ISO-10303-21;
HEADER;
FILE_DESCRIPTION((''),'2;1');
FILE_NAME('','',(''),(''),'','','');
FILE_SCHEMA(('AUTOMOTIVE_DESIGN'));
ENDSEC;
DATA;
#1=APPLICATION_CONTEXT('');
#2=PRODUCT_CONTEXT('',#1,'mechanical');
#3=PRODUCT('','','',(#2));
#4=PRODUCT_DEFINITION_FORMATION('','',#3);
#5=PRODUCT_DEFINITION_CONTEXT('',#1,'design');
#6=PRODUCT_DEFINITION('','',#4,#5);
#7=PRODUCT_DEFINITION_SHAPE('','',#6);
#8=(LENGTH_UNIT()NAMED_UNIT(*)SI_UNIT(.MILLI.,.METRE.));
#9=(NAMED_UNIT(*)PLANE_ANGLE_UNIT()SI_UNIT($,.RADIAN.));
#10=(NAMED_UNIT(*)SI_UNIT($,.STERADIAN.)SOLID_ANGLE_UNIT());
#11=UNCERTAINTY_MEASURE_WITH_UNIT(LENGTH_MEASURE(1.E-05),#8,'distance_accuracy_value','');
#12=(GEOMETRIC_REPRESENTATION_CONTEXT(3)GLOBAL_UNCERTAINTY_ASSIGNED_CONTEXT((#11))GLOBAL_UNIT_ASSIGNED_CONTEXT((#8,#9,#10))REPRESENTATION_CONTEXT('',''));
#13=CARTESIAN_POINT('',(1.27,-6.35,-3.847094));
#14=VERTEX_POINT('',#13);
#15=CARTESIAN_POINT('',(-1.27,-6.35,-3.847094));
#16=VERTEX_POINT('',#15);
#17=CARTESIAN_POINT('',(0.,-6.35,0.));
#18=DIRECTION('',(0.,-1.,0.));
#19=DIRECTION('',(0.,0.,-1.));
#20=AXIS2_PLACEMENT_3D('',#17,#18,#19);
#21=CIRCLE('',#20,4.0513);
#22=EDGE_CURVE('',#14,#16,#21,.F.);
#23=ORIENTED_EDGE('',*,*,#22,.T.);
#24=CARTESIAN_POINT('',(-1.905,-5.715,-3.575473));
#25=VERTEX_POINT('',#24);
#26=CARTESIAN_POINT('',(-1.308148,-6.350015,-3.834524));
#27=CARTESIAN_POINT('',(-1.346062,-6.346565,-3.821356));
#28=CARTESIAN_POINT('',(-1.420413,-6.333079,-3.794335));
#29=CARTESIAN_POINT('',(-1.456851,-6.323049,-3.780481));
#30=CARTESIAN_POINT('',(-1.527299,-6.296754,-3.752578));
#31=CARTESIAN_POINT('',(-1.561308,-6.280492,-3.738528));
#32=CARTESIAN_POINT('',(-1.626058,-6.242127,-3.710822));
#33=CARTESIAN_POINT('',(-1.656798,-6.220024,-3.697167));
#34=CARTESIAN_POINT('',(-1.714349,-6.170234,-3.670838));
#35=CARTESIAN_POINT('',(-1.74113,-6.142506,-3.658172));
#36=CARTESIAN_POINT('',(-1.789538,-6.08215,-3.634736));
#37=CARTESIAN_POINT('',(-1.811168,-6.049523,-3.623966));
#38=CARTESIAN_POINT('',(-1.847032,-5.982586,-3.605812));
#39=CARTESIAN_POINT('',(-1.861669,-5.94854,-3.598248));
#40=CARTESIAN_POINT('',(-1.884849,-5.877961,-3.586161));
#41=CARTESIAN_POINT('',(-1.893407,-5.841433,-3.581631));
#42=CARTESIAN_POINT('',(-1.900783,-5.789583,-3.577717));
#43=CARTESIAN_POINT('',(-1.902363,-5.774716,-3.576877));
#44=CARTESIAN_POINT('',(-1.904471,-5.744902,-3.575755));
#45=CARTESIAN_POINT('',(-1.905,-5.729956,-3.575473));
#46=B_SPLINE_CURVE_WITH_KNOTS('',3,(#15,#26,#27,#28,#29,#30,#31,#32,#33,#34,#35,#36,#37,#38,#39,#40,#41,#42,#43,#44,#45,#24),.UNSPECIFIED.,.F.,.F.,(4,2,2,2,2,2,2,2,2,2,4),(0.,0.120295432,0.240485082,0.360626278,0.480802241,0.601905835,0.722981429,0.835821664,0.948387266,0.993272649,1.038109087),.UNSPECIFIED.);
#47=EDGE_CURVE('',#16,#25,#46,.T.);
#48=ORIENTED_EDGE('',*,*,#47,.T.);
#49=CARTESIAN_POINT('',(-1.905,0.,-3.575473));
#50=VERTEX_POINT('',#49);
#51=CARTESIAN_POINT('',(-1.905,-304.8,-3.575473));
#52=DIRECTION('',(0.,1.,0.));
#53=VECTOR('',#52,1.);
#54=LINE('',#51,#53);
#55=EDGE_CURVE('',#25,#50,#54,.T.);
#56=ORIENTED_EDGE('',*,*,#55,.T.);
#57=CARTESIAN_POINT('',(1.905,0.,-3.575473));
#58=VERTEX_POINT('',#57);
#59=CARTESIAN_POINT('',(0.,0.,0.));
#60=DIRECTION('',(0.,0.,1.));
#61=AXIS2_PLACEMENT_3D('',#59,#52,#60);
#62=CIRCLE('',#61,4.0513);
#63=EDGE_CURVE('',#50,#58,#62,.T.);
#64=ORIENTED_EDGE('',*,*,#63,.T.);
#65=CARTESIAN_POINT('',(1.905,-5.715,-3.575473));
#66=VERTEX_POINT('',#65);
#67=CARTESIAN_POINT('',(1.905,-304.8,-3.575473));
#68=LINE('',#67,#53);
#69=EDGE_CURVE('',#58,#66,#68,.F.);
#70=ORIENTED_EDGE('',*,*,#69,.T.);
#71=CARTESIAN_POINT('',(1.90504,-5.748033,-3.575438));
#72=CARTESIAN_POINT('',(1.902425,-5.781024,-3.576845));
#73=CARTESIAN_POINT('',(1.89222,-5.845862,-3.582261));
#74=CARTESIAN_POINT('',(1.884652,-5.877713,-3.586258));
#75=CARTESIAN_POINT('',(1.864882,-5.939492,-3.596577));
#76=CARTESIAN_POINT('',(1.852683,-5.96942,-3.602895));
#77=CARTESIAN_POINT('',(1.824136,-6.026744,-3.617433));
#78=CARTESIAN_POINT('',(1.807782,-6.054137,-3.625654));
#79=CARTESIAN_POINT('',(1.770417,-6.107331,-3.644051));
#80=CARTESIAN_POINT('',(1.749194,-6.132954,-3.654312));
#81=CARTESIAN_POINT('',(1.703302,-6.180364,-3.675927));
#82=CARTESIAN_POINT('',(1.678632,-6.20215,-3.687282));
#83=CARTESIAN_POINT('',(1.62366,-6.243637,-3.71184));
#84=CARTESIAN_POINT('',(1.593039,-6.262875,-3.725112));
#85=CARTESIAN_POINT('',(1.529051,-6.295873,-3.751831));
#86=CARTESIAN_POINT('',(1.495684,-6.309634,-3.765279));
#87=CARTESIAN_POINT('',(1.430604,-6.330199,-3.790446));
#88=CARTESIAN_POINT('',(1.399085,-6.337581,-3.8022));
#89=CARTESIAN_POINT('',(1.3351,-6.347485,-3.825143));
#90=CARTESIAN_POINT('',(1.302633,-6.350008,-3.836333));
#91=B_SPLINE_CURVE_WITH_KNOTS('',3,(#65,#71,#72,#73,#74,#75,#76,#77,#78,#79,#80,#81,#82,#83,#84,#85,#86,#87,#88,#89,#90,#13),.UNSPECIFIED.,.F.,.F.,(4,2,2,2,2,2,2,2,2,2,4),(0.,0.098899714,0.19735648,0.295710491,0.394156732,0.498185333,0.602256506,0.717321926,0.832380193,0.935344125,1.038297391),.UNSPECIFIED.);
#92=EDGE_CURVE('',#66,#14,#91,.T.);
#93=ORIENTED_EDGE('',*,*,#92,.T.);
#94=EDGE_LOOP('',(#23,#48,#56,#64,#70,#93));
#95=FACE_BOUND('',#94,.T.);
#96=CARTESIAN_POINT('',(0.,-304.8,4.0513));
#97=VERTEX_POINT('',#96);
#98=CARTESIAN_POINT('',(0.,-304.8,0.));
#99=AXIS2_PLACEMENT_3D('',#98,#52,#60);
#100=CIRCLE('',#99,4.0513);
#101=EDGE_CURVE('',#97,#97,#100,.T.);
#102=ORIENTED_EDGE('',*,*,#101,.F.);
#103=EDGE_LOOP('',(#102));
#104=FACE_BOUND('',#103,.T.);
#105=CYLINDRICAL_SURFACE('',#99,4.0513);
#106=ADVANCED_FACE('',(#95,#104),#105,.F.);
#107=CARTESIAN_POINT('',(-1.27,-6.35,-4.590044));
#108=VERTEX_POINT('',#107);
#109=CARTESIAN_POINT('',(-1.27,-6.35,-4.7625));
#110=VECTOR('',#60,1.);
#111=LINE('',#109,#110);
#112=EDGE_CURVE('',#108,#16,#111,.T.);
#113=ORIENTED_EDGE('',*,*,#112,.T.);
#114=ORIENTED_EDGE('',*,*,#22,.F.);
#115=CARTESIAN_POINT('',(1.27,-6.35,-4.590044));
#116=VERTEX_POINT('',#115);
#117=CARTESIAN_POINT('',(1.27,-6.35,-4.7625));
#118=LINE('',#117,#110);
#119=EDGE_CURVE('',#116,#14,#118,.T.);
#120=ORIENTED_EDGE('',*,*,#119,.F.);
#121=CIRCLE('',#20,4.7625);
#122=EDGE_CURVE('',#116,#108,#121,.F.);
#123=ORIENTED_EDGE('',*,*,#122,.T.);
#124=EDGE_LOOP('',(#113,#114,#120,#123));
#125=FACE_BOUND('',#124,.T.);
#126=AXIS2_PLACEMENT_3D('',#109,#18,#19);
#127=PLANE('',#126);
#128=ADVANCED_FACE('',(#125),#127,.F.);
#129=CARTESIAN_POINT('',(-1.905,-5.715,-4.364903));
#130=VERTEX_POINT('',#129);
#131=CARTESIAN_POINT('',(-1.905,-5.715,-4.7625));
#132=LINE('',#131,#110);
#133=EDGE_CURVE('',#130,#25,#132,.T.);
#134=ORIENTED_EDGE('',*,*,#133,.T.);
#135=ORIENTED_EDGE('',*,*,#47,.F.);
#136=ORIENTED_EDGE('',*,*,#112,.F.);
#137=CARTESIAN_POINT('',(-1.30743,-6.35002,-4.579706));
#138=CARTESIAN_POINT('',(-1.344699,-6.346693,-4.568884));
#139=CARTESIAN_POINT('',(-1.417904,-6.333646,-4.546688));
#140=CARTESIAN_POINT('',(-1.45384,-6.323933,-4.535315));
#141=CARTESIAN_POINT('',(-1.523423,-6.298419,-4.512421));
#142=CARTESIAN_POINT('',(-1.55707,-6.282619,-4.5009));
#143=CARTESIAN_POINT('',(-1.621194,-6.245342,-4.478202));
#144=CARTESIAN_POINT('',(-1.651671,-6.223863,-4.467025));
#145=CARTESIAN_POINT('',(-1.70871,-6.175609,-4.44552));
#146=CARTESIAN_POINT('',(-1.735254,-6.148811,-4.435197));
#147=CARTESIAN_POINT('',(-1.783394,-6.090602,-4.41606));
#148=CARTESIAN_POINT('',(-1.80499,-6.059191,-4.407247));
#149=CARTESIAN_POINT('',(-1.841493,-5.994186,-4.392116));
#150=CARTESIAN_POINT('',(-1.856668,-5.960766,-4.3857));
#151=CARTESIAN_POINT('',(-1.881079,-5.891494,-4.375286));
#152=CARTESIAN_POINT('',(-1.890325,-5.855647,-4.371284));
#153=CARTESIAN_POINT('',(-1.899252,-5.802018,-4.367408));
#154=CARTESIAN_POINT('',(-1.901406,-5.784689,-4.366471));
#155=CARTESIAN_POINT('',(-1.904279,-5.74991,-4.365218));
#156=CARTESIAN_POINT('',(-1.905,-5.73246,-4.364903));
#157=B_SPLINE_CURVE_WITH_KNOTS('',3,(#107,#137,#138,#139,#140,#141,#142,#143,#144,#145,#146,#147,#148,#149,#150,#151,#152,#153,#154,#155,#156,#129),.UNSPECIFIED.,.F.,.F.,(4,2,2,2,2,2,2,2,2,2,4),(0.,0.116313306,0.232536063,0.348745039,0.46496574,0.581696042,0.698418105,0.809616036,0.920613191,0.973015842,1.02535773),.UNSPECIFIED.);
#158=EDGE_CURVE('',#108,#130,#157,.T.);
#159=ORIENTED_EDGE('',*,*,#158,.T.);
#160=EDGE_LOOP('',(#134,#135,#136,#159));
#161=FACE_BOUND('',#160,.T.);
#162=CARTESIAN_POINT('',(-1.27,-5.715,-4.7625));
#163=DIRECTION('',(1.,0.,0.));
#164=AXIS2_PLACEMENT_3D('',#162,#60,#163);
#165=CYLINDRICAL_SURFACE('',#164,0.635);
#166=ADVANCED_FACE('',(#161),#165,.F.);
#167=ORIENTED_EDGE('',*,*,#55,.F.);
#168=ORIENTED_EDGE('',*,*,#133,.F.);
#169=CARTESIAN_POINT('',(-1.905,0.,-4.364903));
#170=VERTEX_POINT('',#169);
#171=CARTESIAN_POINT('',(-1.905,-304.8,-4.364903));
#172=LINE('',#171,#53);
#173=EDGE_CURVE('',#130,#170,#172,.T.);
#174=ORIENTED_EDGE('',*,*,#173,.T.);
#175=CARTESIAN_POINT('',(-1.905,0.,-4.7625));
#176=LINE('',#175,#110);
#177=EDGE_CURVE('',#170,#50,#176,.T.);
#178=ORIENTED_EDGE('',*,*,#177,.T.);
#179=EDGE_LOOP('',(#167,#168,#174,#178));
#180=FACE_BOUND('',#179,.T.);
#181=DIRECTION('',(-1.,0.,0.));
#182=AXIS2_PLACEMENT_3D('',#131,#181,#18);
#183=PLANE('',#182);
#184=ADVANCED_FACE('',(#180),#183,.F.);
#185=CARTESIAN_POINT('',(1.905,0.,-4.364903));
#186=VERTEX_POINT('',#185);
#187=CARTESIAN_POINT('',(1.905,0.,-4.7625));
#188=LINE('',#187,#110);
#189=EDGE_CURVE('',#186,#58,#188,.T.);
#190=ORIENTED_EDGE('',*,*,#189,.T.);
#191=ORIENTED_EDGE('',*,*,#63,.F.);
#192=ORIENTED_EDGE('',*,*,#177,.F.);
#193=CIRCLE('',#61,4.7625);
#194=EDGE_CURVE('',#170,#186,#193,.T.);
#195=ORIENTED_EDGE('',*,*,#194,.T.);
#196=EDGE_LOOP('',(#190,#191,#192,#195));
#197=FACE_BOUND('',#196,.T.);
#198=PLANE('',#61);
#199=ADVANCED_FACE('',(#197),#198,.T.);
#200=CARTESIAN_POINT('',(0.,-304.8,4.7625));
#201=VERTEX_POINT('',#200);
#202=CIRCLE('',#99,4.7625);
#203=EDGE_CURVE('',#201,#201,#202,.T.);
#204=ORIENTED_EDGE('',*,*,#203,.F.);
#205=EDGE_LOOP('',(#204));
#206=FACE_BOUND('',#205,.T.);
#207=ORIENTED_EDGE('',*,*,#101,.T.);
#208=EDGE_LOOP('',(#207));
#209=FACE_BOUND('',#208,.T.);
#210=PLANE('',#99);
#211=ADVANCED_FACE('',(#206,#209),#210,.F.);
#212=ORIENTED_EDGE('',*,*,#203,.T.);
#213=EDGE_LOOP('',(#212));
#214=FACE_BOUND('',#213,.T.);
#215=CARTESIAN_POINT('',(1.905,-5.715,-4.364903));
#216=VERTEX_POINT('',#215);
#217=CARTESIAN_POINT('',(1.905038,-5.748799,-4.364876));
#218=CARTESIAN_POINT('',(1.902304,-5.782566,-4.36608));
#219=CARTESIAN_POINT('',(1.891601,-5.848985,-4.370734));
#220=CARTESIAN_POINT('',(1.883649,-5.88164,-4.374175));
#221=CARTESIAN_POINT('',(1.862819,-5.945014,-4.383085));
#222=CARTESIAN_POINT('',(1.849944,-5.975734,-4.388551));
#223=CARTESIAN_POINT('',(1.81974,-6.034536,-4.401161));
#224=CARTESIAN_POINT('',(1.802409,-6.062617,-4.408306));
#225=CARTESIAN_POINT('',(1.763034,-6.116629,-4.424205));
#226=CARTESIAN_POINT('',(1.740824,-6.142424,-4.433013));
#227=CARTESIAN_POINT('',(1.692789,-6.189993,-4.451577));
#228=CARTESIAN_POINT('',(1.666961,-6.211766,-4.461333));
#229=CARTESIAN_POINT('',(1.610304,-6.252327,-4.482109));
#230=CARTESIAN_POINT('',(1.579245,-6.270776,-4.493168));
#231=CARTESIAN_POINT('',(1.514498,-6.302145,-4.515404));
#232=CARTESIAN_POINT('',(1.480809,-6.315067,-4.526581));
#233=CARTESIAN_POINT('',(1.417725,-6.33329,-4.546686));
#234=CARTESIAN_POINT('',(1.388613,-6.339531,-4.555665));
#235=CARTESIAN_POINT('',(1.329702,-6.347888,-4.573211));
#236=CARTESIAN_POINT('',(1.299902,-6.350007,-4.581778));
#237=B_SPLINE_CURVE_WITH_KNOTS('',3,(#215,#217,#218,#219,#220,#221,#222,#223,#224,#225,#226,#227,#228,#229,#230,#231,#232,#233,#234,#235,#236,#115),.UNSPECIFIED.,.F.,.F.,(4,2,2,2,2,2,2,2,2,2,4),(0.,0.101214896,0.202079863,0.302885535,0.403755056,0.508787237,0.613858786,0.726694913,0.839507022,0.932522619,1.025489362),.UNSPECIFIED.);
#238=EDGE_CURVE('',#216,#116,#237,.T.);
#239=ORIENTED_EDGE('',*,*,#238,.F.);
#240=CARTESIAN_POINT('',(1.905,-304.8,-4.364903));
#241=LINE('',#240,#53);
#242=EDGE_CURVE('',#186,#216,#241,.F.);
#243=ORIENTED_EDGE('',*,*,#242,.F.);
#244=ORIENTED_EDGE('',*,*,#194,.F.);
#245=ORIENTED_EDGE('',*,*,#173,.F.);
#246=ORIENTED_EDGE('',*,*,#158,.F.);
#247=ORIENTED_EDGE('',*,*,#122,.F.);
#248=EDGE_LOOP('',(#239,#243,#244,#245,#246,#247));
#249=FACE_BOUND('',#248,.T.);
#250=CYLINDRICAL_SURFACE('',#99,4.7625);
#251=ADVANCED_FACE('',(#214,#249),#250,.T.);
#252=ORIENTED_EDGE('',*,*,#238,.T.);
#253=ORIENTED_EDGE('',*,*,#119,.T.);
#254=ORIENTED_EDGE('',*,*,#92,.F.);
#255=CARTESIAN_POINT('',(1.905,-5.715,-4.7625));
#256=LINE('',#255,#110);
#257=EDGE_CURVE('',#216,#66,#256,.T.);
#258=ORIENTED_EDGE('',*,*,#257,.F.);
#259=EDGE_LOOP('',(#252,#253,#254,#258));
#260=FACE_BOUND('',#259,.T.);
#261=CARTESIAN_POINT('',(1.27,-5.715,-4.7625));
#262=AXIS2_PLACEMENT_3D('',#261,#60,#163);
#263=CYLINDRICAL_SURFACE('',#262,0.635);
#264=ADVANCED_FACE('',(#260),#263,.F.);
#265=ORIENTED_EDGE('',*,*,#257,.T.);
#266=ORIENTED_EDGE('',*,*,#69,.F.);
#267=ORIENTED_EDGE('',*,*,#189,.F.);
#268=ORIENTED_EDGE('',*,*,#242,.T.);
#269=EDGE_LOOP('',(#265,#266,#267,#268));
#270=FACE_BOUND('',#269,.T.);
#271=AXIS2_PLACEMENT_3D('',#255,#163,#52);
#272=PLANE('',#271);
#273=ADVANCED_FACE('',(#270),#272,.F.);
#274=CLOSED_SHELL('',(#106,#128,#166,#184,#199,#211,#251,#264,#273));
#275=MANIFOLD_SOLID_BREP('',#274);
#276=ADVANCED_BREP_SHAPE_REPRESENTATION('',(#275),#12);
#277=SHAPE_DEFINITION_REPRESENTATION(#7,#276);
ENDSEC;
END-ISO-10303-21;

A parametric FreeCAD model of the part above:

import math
import FreeCAD as App
import Part
import Sketcher
from FreeCAD import Vector
Q = App.Units.Quantity

doc = App.newDocument("Part")
params = doc.addObject("Spreadsheet::Sheet", "Params")
for row, (alias, value) in enumerate([
    ("sketch1_diameter", "0.375 in"),
    ("sketch1_diameter2", "0.319 in"),
    ("pad1_length", "12 in"),
    ("sketch2_width", "0.1 in"),
    ("sketch2_radius", "0.025 in"),
    ("sketch2_height", "0.225 in"),
], start=1):
    params.set(f"A{row}", alias)
    params.set(f"B{row}", "=" + value)
    params.setAlias(f"B{row}", alias)

body = doc.addObject("PartDesign::Body", "Body")

# Sketch on XZ plane
sketch1 = doc.addObject("Sketcher::SketchObject", "Sketch")
body.addObject(sketch1)
sketch1.AttachmentSupport = (doc.XZ_Plane, [""])
sketch1.MapMode = "FlatFace"
sketch1.addGeometry([
    Part.Circle(Vector(0, 0, 0), Vector(0, 0, 1), 4.8),
    Part.Circle(Vector(0, 0, 0), Vector(0, 0, 1), 4.1),
], False)
sketch1.addConstraint([
    Sketcher.Constraint("Coincident", 0, 3, -1, 1),
    Sketcher.Constraint("Coincident", 1, 3, -1, 1),
    Sketcher.Constraint("Diameter", 0, Q("0.375 in")),
    Sketcher.Constraint("Diameter", 1, Q("0.319 in")),
])
sketch1.setExpression("Constraints[2]", "Params.sketch1_diameter")
sketch1.setExpression("Constraints[3]", "Params.sketch1_diameter2")
pad1 = doc.addObject("PartDesign::Pad", "Pad")
body.addObject(pad1)
pad1.Profile = sketch1
pad1.setExpression("Length", "Params.pad1_length")

# Sketch on XY plane
sketch2 = doc.addObject("Sketcher::SketchObject", "Sketch001")
body.addObject(sketch2)
sketch2.AttachmentSupport = (doc.XY_Plane, [""])
sketch2.MapMode = "FlatFace"
sketch2.addGeometry([
    Part.LineSegment(Vector(-1.3, -6.3, 0), Vector(1.3, -6.3, 0)),  # 0
    Part.ArcOfCircle(Part.Circle(Vector(1.3, -5.7, 0), Vector(0, 0, 1), 0.6), math.radians(-90), math.radians(0)),  # 1
    Part.LineSegment(Vector(1.9, -5.7, 0), Vector(1.9, 0, 0)),  # 2
    Part.LineSegment(Vector(1.9, 0, 0), Vector(-1.9, 0, 0)),  # 3
    Part.LineSegment(Vector(-1.9, 0, 0), Vector(-1.9, -5.7, 0)),  # 4
    Part.ArcOfCircle(Part.Circle(Vector(-1.3, -5.7, 0), Vector(0, 0, 1), 0.6), math.radians(180), math.radians(270)),  # 5
], False)
sketch2.addConstraint([
    Sketcher.Constraint("Tangent", 0, 2, 1, 1),
    Sketcher.Constraint("Tangent", 1, 2, 2, 1),
    Sketcher.Constraint("Coincident", 2, 2, 3, 1),
    Sketcher.Constraint("Coincident", 3, 2, 4, 1),
    Sketcher.Constraint("Tangent", 4, 2, 5, 1),
    Sketcher.Constraint("Tangent", 5, 2, 0, 1),
    Sketcher.Constraint("Horizontal", 0),
    Sketcher.Constraint("Vertical", 2),
    Sketcher.Constraint("Horizontal", 3),
    Sketcher.Constraint("Vertical", 4),
    Sketcher.Constraint("Equal", 1, 5),
    Sketcher.Constraint("Symmetric", 2, 2, 3, 2, -1, 1),
    Sketcher.Constraint("DistanceX", 0, 1, 0, 2, Q("0.1 in")),
    Sketcher.Constraint("Radius", 1, Q("0.025 in")),
    Sketcher.Constraint("DistanceY", 2, 1, 2, 2, Q("0.225 in")),
])
sketch2.setExpression("Constraints[12]", "Params.sketch2_width")
sketch2.setExpression("Constraints[13]", "Params.sketch2_radius")
sketch2.setExpression("Constraints[14]", "Params.sketch2_height")
pocket1 = doc.addObject("PartDesign::Pocket", "Pocket")
body.addObject(pocket1)
pocket1.Profile = sketch2
pocket1.Type = "ThroughAll"

doc.recompute()
